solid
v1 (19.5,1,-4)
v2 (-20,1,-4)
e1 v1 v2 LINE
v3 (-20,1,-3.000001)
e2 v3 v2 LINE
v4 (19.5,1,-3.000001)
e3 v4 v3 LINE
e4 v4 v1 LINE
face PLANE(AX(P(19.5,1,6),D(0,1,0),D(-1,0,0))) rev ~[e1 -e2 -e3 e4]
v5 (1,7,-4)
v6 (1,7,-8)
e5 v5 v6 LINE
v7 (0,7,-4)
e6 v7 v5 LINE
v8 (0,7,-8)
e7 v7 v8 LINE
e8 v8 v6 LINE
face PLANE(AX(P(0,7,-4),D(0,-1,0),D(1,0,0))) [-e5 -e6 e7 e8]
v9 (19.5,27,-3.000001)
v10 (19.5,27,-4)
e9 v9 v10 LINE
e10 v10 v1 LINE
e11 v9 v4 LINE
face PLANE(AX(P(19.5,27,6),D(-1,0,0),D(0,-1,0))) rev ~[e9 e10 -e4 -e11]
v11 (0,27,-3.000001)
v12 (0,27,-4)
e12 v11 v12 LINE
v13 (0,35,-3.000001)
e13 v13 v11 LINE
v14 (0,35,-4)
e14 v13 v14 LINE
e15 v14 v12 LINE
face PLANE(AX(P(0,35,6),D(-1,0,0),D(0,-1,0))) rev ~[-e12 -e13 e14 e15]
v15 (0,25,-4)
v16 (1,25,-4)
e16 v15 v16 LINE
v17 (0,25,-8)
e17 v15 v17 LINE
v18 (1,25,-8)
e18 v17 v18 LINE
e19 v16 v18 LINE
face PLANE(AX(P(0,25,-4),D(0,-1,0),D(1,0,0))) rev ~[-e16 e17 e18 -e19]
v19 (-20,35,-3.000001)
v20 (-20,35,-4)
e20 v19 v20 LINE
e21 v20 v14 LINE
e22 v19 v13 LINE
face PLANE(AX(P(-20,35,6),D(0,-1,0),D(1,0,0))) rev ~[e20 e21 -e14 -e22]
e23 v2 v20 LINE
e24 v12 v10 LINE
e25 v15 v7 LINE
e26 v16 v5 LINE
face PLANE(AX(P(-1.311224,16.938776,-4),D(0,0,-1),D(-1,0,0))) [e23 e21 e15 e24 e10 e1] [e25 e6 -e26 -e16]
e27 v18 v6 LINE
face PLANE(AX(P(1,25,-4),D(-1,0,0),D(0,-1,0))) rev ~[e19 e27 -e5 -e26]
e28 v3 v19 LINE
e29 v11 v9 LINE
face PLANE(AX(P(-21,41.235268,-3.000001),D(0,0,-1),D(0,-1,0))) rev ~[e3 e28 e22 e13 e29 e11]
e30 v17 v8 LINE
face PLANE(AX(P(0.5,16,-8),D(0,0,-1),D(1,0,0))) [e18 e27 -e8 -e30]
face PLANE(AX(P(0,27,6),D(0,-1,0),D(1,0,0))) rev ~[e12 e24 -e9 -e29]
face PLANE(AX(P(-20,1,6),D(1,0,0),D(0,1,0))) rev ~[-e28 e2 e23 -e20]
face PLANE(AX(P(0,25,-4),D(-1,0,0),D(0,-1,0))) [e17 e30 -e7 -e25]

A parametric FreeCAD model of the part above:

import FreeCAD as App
import Part
import Sketcher

V = App.Vector
Q = App.Units.Quantity


def add_polygon(sketch, points):
    """Adds a closed chain of lines whose ends are joined by coincident constraints."""
    first, n = sketch.GeometryCount, len(points)
    for a, b in zip(points, points[1:] + points[:1]):
        sketch.addGeometry(Part.LineSegment(App.Vector(*a, 0), App.Vector(*b, 0)), False)
    for i in range(n):
        sketch.addConstraint(Sketcher.Constraint("Coincident", first + i, 2, first + (i + 1) % n, 1))

doc = App.newDocument("Part")
body = doc.addObject("PartDesign::Body", "Body")

# Sketch on XY plane
sketch1 = body.newObject("Sketcher::SketchObject", "Sketch")
sketch1.AttachmentSupport = (doc.getObject("XY_Plane"), [""])
sketch1.MapMode = "FlatFace"
add_polygon(sketch1, [(-21, 36), (-21, 0), (20, 0), (20, 36)])  # lines 0-3
sketch1.addConstraint([
    Sketcher.Constraint("Vertical", 0),
    Sketcher.Constraint("Horizontal", 1),
    Sketcher.Constraint("Vertical", 2),
    Sketcher.Constraint("Horizontal", 3),
    Sketcher.Constraint("PointOnObject", 0, 2, -1),
    Sketcher.Constraint("DistanceY", 0, 2, 0, 1, Q("36 mm")),
    Sketcher.Constraint("DistanceX", 1, 1, 1, 2, Q("41.5 mm")),
    Sketcher.Constraint("DistanceX", 0, 2, -1, 1, Q("21 mm")),
])
pad1 = body.newObject("PartDesign::Pad", "Pad")
pad1.Profile = sketch1
pad1.Length = 6

# Sketch on XY plane
sketch2 = body.newObject("Sketcher::SketchObject", "Sketch001")
sketch2.AttachmentSupport = (doc.getObject("XY_Plane"), [""])
sketch2.MapMode = "FlatFace"
sketch2.AttachmentOffset = App.Placement(V(0, 0, 6), App.Rotation())
add_polygon(sketch2, [(-19, 2), (18, 2), (18, 26), (-1, 26), (-1, 34), (-19, 34)])  # lines 0-5
sketch2.addConstraint([
    Sketcher.Constraint("Horizontal", 0),
    Sketcher.Constraint("Vertical", 1),
    Sketcher.Constraint("Horizontal", 2),
    Sketcher.Constraint("Vertical", 3),
    Sketcher.Constraint("Horizontal", 4),
    Sketcher.Constraint("Vertical", 5),
    Sketcher.Constraint("DistanceX", 4, 2, 4, 1, Q("18 mm")),
    Sketcher.Constraint("DistanceY", 1, 1, 1, 2, Q("24 mm")),
    Sketcher.Constraint("DistanceY", 3, 1, 3, 2, Q("8 mm")),
    Sketcher.Constraint("DistanceX", 0, 1, 0, 2, Q("37.5 mm")),
    Sketcher.Constraint("DistanceY", -1, 1, 0, 2, Q("2 mm")),
    Sketcher.Constraint("DistanceX", 2, 2, -1, 1, Q("1 mm")),
])
pocket1 = body.newObject("PartDesign::Pocket", "Pocket")
pocket1.Profile = sketch2
pocket1.Length = 5

# Sketch on XY plane
sketch3 = body.newObject("Sketcher::SketchObject", "Sketch002")
sketch3.AttachmentSupport = (doc.getObject("XY_Plane"), [""])
sketch3.MapMode = "FlatFace"
sketch3.AttachmentOffset = App.Placement(V(0, 0, 6), App.Rotation())
add_polygon(sketch3, [(1, 36), (1, 28), (20, 28), (20, 36)])  # lines 0-3
sketch3.addConstraint([
    Sketcher.Constraint("Vertical", 0),
    Sketcher.Constraint("Horizontal", 1),
    Sketcher.Constraint("Vertical", 2),
    Sketcher.Constraint("Horizontal", 3),
    Sketcher.Constraint("DistanceY", 0, 2, 0, 1, Q("8 mm")),
    Sketcher.Constraint("DistanceX", 1, 1, 1, 2, Q("19.5 mm")),
    Sketcher.Constraint("DistanceX", -1, 1, 0, 2, Q("1 mm")),
    Sketcher.Constraint("DistanceY", -1, 1, 0, 2, Q("28 mm")),
])
pocket2 = body.newObject("PartDesign::Pocket", "Pocket001")
pocket2.Profile = sketch3
pocket2.Type = "ThroughAll"

# Sketch on XY plane
sketch4 = body.newObject("Sketcher::SketchObject", "Sketch003")
sketch4.AttachmentSupport = (doc.getObject("XY_Plane"), [""])
sketch4.MapMode = "FlatFace"
sketch4.AttachmentOffset = App.Placement(V(0, 0, 6), App.Rotation())
add_polygon(sketch4, [(0, 35), (-20, 35), (-20, 1), (20, 1), (20, 27), (0, 27)])  # lines 0-5
sketch4.addConstraint([
    Sketcher.Constraint("Horizontal", 0),
    Sketcher.Constraint("Vertical", 1),
    Sketcher.Constraint("Horizontal", 2),
    Sketcher.Constraint("Vertical", 3),
    Sketcher.Constraint("Horizontal", 4),
    Sketcher.Constraint("Vertical", 5),
    Sketcher.Constraint("PointOnObject", 4, 2, -2),
    Sketcher.Constraint("DistanceX", 0, 2, 0, 1, Q("20 mm")),
    Sketcher.Constraint("DistanceY", 1, 2, 1, 1, Q("34 mm")),
    Sketcher.Constraint("DistanceY", 3, 1, 3, 2, Q("26 mm")),
    Sketcher.Constraint("DistanceX", 2, 1, 2, 2, Q("39.5 mm")),
    Sketcher.Constraint("DistanceY", -1, 1, 0, 2, Q("35 mm")),
])
pocket3 = body.newObject("PartDesign::Pocket", "Pocket002")
pocket3.Profile = sketch4
pocket3.Length = 1

# Sketch on XY plane
sketch5 = body.newObject("Sketcher::SketchObject", "Sketch004")
sketch5.AttachmentSupport = (doc.getObject("XY_Plane"), [""])
sketch5.MapMode = "FlatFace"
sketch5.AttachmentOffset = App.Placement(V(0, 0, 1), App.Rotation())
add_polygon(sketch5, [(-1, 26), (-1, 7), (0, 7), (0, 26)])  # lines 0-3
sketch5.addConstraint([
    Sketcher.Constraint("Vertical", 0),
    Sketcher.Constraint("Horizontal", 1),
    Sketcher.Constraint("Vertical", 2),
    Sketcher.Constraint("Horizontal", 3),
    Sketcher.Constraint("PointOnObject", 1, 2, -2),
    Sketcher.Constraint("DistanceX", 1, 1, 1, 2, Q("1 mm")),
    Sketcher.Constraint("DistanceY", 0, 2, 0, 1, Q("19 mm")),
    Sketcher.Constraint("DistanceY", -1, 1, 0, 2, Q("7 mm")),
])
pad2 = body.newObject("PartDesign::Pad", "Pad001")
pad2.Profile = sketch5
pad2.Length = 4

# Sketch on XY plane
sketch6 = body.newObject("Sketcher::SketchObject", "Sketch005")
sketch6.AttachmentSupport = (doc.getObject("XY_Plane"), [""])
sketch6.MapMode = "FlatFace"
sketch6.AttachmentOffset = App.Placement(V(0, 0, 6), App.Rotation())
add_polygon(sketch6, [(0, 35), (-20, 35), (-20, 1), (20, 1), (20, 27), (0, 27)])  # lines 0-5
sketch6.addConstraint([
    Sketcher.Constraint("Horizontal", 0),
    Sketcher.Constraint("Vertical", 1),
    Sketcher.Constraint("Horizontal", 2),
    Sketcher.Constraint("Vertical", 3),
    Sketcher.Constraint("Horizontal", 4),
    Sketcher.Constraint("Vertical", 5),
    Sketcher.Constraint("PointOnObject", 4, 2, -2),
    Sketcher.Constraint("DistanceX", 0, 2, 0, 1, Q("20 mm")),
    Sketcher.Constraint("DistanceY", 1, 2, 1, 1, Q("34 mm")),
    Sketcher.Constraint("DistanceY", 3, 1, 3, 2, Q("26 mm")),
    Sketcher.Constraint("DistanceX", 2, 1, 2, 2, Q("39.5 mm")),
    Sketcher.Constraint("DistanceY", -1, 1, 0, 2, Q("35 mm")),
])
pad3 = body.newObject("PartDesign::Pad", "Pad002")
pad3.Profile = sketch6
pad3.Length = 10
pad3.Reversed = True

# Sketch on YZ plane
sketch7 = body.newObject("Sketcher::SketchObject", "Sketch006")
sketch7.AttachmentSupport = (doc.getObject("YZ_Plane"), [""])
sketch7.MapMode = "FlatFace"
sketch7.AttachmentOffset = App.Placement(V(0, 0, -21), App.Rotation())
add_polygon(sketch7, [(41, 18), (41, -3), (-11, -3), (-11, 18)])  # lines 0-3
sketch7.addConstraint([
    Sketcher.Constraint("Vertical", 0),
    Sketcher.Constraint("Horizontal", 1),
    Sketcher.Constraint("Vertical", 2),
    Sketcher.Constraint("Horizontal", 3),
    Sketcher.Constraint("DistanceY", 0, 2, -1, 1, Q("3.000001 mm")),
    Sketcher.Constraint("DistanceX", 1, 2, 1, 1, Q("52.700282 mm")),
    Sketcher.Constraint("DistanceY", 0, 2, 0, 1, Q("20.841337 mm")),
    Sketcher.Constraint("DistanceX", -1, 1, 0, 2, Q("41.235268 mm")),
])
pocket4 = body.newObject("PartDesign::Pocket", "Pocket003")
pocket4.Profile = sketch7
pocket4.Type = "ThroughAll"
pocket4.Reversed = True

# Sketch on XY plane
sketch8 = body.newObject("Sketcher::SketchObject", "Sketch007")
sketch8.AttachmentSupport = (doc.getObject("XY_Plane"), [""])
sketch8.MapMode = "FlatFace"
sketch8.AttachmentOffset = App.Placement(V(0, 0, -4), App.Rotation())
add_polygon(sketch8, [(0, 7), (0, 25), (1, 25), (1, 7)])  # lines 0-3
sketch8.addConstraint([
    Sketcher.Constraint("Vertical", 0),
    Sketcher.Constraint("Horizontal", 1),
    Sketcher.Constraint("Vertical", 2),
    Sketcher.Constraint("Horizontal", 3),
    Sketcher.Constraint("PointOnObject", 0, 2, -2),
    Sketcher.Constraint("DistanceX", 1, 1, 1, 2, Q("1 mm")),
    Sketcher.Constraint("DistanceY", 0, 1, 0, 2, Q("18 mm")),
    Sketcher.Constraint("DistanceY", -1, 1, 0, 2, Q("25 mm")),
])
pad4 = body.newObject("PartDesign::Pad", "Pad003")
pad4.Profile = sketch8
pad4.Length = 4
pad4.Reversed = True

doc.recompute()
